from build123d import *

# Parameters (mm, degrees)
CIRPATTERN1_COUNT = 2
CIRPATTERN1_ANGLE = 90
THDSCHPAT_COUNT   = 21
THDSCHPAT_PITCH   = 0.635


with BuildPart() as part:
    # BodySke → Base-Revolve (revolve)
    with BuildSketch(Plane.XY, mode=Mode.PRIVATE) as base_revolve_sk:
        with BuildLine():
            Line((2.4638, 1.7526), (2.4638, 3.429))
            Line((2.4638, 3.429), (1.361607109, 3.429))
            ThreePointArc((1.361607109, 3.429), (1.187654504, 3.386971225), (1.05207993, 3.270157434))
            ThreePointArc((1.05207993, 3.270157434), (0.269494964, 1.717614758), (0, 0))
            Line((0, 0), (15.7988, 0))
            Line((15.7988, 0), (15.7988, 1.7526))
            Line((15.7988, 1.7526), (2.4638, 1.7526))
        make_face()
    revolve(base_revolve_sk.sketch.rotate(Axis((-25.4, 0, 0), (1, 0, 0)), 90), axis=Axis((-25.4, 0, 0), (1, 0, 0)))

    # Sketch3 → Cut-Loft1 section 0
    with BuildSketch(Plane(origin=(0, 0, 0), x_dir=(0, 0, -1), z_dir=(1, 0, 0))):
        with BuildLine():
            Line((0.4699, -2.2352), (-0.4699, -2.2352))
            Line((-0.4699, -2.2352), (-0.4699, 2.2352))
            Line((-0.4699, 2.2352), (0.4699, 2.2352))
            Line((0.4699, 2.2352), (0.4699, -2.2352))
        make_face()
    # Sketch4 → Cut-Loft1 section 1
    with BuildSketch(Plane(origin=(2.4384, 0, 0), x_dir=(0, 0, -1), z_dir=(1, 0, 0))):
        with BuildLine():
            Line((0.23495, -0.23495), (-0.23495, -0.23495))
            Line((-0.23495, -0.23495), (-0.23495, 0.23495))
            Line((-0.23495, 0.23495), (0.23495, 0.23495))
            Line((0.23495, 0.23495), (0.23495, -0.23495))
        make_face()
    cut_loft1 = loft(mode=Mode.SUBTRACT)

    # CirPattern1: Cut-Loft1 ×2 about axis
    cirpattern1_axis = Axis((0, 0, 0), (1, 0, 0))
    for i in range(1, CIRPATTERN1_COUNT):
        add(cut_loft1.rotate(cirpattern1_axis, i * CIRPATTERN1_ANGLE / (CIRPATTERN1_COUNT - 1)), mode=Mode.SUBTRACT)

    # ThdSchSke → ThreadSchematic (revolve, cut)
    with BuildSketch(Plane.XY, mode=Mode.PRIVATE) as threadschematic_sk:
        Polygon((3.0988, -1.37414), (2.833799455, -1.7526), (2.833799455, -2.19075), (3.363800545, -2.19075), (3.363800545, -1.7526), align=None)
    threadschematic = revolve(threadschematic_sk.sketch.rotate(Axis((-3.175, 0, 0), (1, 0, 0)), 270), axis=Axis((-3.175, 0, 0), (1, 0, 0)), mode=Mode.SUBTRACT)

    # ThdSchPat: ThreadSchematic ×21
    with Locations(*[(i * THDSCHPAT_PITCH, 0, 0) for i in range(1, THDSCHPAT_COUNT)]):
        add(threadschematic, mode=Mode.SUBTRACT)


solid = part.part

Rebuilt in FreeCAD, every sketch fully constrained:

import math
import FreeCAD as App
import Part
import Sketcher
Q = App.Units.Quantity


def add_polygon(sketch, points):
    """Adds a closed chain of lines whose ends are joined by coincident constraints."""
    first, n = sketch.GeometryCount, len(points)
    for a, b in zip(points, points[1:] + points[:1]):
        sketch.addGeometry(Part.LineSegment(App.Vector(*a, 0), App.Vector(*b, 0)), False)
    for i in range(n):
        sketch.addConstraint(Sketcher.Constraint("Coincident", first + i, 2, first + (i + 1) % n, 1))

doc = App.newDocument("Part")
body = doc.addObject("PartDesign::Body", "Body")

sketch1 = body.newObject("Sketcher::SketchObject", "Sketch")
sketch1.AttachmentSupport = (doc.getObject("XY_Plane"), [""])
sketch1.MapMode = "FlatFace"
sketch1.addGeometry(Part.LineSegment(App.Vector(2.46, 1.75, 0), App.Vector(2.46, 3.43, 0)), False)
sketch1.addGeometry(Part.LineSegment(App.Vector(2.46, 3.43, 0), App.Vector(1.36, 3.43, 0)), False)
sketch1.addGeometry(Part.ArcOfCircle(Part.Circle(App.Vector(1.36, 3.05, 0), App.Vector(0, 0, 1), 0.38), math.radians(90), math.radians(144)), False)
sketch1.addGeometry(Part.ArcOfCircle(Part.Circle(App.Vector(5.61, 0, 0), App.Vector(0, 0, 1), 5.61), math.radians(144), math.radians(180)), False)
sketch1.addGeometry(Part.LineSegment(App.Vector(0, 0, 0), App.Vector(15.8, 0, 0)), False)
sketch1.addGeometry(Part.LineSegment(App.Vector(15.8, 0, 0), App.Vector(15.8, 1.75, 0)), False)
sketch1.addGeometry(Part.LineSegment(App.Vector(15.8, 1.75, 0), App.Vector(2.46, 1.75, 0)), False)
sketch1.addConstraint(Sketcher.Constraint("Coincident", 0, 2, 1, 1))
sketch1.addConstraint(Sketcher.Constraint("Tangent", 1, 2, 2, 1))
sketch1.addConstraint(Sketcher.Constraint("Tangent", 2, 2, 3, 1))
sketch1.addConstraint(Sketcher.Constraint("Coincident", 3, 2, 4, 1))
sketch1.addConstraint(Sketcher.Constraint("Coincident", 4, 2, 5, 1))
sketch1.addConstraint(Sketcher.Constraint("Coincident", 5, 2, 6, 1))
sketch1.addConstraint(Sketcher.Constraint("Coincident", 6, 2, 0, 1))
sketch1.addConstraint(Sketcher.Constraint("Vertical", 0))
sketch1.addConstraint(Sketcher.Constraint("Horizontal", 1))
sketch1.addConstraint(Sketcher.Constraint("Horizontal", 4))
sketch1.addConstraint(Sketcher.Constraint("Vertical", 5))
sketch1.addConstraint(Sketcher.Constraint("Horizontal", 6))
sketch1.addConstraint(Sketcher.Constraint("Coincident", 3, 2, -1, 1))
sketch1.addConstraint(Sketcher.Constraint("PointOnObject", 3, 3, -1))
sketch1.addConstraint(Sketcher.Constraint("Radius", 2, Q("0.015 in")))
sketch1.addConstraint(Sketcher.Constraint("Radius", 3, Q("0.2208 in")))
sketch1.addConstraint(Sketcher.Constraint("DistanceX", 4, 1, 4, 2, Q("0.622 in")))
sketch1.addConstraint(Sketcher.Constraint("DistanceX", 6, 2, 6, 1, Q("0.525 in")))
sketch1.addConstraint(Sketcher.Constraint("DistanceY", 0, 1, 0, 2, Q("0.066 in")))
sketch1.addConstraint(Sketcher.Constraint("DistanceY", 5, 1, 5, 2, Q("0.069 in")))
revolution = body.newObject("PartDesign::Revolution", "Revolution")
revolution.Profile = sketch1
revolution.ReferenceAxis = (sketch1, ["H_Axis"])
revolution.Angle = 360

sketch2 = body.newObject("Sketcher::SketchObject", "Sketch001")
sketch2.AttachmentSupport = (doc.getObject("YZ_Plane"), [""])
sketch2.MapMode = "FlatFace"
add_polygon(sketch2, [(-2.2, 0.5), (-2.2, -0.5), (2.2, -0.5), (2.2, 0.5)])
sketch2.addConstraint(Sketcher.Constraint("Vertical", 0))
sketch2.addConstraint(Sketcher.Constraint("Horizontal", 1))
sketch2.addConstraint(Sketcher.Constraint("Vertical", 2))
sketch2.addConstraint(Sketcher.Constraint("Horizontal", 3))
sketch2.addConstraint(Sketcher.Constraint("Symmetric", 0, 2, 2, 2, -1, 1))
sketch2.addConstraint(Sketcher.Constraint("DistanceX", 1, 1, 1, 2, Q("0.176 in")))
sketch2.addConstraint(Sketcher.Constraint("DistanceY", 0, 2, 0, 1, Q("0.037 in")))

sketch3 = body.newObject("Sketcher::SketchObject", "Sketch002")
sketch3.AttachmentSupport = (doc.getObject("YZ_Plane"), [""])
sketch3.MapMode = "FlatFace"
sketch3.AttachmentOffset = App.Placement(App.Vector(0, 0, 0.096 * 25.4), App.Rotation())
add_polygon(sketch3, [(-0.23, 0.23), (-0.23, -0.23), (0.23, -0.23), (0.23, 0.23)])
sketch3.addConstraint(Sketcher.Constraint("Vertical", 0))
sketch3.addConstraint(Sketcher.Constraint("Horizontal", 1))
sketch3.addConstraint(Sketcher.Constraint("Vertical", 2))
sketch3.addConstraint(Sketcher.Constraint("Horizontal", 3))
sketch3.addConstraint(Sketcher.Constraint("Symmetric", 0, 2, 2, 2, -1, 1))
sketch3.addConstraint(Sketcher.Constraint("Equal", 3, 0))
sketch3.addConstraint(Sketcher.Constraint("DistanceX", 1, 1, 1, 2, Q("0.0185 in")))

subtractiveloft = body.newObject("PartDesign::SubtractiveLoft", "SubtractiveLoft")
subtractiveloft.Profile = sketch2
subtractiveloft.Sections = [sketch3]
doc.recompute()

polarpattern = body.newObject("PartDesign::PolarPattern", "PolarPattern")
polarpattern.Originals = [subtractiveloft]
polarpattern.Axis = (doc.getObject("X_Axis"), [""])
polarpattern.Angle = 90
polarpattern.Occurrences = 2
body.Tip = polarpattern

sketch4 = body.newObject("Sketcher::SketchObject", "Sketch003")
sketch4.AttachmentSupport = (doc.getObject("XY_Plane"), [""])
sketch4.MapMode = "FlatFace"
add_polygon(sketch4, [(3.1, -1.37), (2.83, -1.75), (2.83, -2.19), (3.36, -2.19), (3.36, -1.75)])
sketch4.addConstraint(Sketcher.Constraint("Vertical", 1))
sketch4.addConstraint(Sketcher.Constraint("Horizontal", 2))
sketch4.addConstraint(Sketcher.Constraint("Vertical", 3))
sketch4.addConstraint(Sketcher.Constraint("Horizontal", 0, 2, 3, 2))
sketch4.addConstraint(Sketcher.Constraint("Equal", 0, 4))
sketch4.addConstraint(Sketcher.Constraint("Angle", 0, Q("-125 deg")))
sketch4.addConstraint(Sketcher.Constraint("DistanceY", 0, 2, -1, 1, Q("0.069 in")))
sketch4.addConstraint(Sketcher.Constraint("DistanceX", -1, 1, 4, 2, Q("0.122 in")))
sketch4.addConstraint(Sketcher.Constraint("DistanceX", 2, 1, 2, 2, Q("0.530001 mm")))
sketch4.addConstraint(Sketcher.Constraint("DistanceY", 1, 2, 1, 1, Q("0.43815 mm")))
groove = body.newObject("PartDesign::Groove", "Groove")
groove.Profile = sketch4
groove.ReferenceAxis = (sketch4, ["H_Axis"])
groove.Angle = 360
doc.recompute()

linearpattern = body.newObject("PartDesign::LinearPattern", "LinearPattern")
linearpattern.Originals = [groove]
linearpattern.Direction = (doc.getObject("X_Axis"), [""])
linearpattern.Mode = "offset"
linearpattern.Offset = Q("0.025 in")
linearpattern.Occurrences = 21
body.Tip = linearpattern

doc.recompute()
